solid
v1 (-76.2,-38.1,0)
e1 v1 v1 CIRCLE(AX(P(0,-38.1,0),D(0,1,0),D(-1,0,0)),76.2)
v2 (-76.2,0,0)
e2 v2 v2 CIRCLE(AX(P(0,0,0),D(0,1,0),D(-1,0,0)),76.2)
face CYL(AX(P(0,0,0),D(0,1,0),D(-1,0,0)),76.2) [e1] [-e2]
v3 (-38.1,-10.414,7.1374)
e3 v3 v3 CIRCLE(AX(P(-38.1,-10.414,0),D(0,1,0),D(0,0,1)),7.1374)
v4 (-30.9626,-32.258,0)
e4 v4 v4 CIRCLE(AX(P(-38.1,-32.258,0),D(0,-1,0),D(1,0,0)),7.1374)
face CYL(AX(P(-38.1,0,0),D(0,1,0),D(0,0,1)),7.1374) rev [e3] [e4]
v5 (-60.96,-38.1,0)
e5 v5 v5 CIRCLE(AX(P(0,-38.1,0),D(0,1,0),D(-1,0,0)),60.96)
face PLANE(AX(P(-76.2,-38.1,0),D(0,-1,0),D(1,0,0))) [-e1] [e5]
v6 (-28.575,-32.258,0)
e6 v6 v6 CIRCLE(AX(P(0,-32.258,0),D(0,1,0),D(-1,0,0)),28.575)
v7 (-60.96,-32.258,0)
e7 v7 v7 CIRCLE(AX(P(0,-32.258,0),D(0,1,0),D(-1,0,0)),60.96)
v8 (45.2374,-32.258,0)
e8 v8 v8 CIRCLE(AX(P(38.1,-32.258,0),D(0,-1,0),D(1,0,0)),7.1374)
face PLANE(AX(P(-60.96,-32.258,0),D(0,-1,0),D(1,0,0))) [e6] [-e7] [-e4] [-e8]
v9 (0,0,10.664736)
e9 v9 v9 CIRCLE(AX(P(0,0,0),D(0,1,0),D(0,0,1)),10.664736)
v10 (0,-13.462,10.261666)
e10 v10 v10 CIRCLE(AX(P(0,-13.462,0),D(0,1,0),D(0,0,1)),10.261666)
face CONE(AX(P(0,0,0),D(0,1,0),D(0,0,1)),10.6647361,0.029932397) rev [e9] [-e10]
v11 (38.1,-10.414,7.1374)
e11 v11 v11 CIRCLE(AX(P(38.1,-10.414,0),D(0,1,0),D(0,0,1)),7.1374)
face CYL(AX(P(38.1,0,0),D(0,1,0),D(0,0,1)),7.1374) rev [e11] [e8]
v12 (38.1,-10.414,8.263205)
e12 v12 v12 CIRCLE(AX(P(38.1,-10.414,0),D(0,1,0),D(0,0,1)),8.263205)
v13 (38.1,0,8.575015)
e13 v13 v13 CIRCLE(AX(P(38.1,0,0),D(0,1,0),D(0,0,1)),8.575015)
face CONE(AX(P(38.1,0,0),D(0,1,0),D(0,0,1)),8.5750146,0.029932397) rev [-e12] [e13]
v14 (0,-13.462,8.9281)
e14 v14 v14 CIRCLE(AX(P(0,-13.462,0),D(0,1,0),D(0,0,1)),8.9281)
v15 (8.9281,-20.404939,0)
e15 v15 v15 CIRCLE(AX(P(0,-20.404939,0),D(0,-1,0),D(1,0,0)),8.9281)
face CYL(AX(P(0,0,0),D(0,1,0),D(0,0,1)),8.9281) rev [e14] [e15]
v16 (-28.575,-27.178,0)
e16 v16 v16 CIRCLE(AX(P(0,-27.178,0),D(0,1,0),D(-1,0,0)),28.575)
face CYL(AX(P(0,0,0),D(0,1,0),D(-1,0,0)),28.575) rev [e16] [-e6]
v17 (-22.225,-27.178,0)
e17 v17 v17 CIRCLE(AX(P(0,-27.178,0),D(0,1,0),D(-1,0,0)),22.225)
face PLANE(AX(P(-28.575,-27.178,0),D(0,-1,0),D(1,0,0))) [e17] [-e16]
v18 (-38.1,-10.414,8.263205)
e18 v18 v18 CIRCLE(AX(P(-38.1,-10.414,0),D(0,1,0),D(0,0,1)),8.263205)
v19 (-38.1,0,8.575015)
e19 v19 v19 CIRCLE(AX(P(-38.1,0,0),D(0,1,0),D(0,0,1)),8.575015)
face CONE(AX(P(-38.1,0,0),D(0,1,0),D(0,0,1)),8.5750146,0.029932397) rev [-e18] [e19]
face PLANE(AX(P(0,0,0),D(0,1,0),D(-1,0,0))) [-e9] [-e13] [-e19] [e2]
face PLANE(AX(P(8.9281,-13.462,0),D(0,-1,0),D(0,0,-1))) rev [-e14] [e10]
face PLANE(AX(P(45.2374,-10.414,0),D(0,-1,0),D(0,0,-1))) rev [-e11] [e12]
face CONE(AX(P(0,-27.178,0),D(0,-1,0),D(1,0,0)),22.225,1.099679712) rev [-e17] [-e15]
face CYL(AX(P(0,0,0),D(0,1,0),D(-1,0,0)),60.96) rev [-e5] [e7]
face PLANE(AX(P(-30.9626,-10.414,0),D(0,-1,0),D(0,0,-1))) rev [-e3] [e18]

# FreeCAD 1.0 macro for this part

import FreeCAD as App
import Part
import Sketcher
Q = App.Units.Quantity

doc = App.newDocument("Part")
body = doc.addObject("PartDesign::Body", "Body")

sketch1 = doc.addObject("Sketcher::SketchObject", "Sketch")
body.addObject(sketch1)
sketch1.AttachmentSupport = (doc.XY_Plane, [""])
sketch1.MapMode = "FlatFace"
sketch1.addGeometry([
    Part.LineSegment(App.Vector(0, 0, 0), App.Vector(-76, 0, 0)),
    Part.LineSegment(App.Vector(-76, 0, 0), App.Vector(-76, -38, 0)),
    Part.LineSegment(App.Vector(-76, -38, 0), App.Vector(-61, -38, 0)),
    Part.LineSegment(App.Vector(-61, -38, 0), App.Vector(-61, -32, 0)),
    Part.LineSegment(App.Vector(-61, -32, 0), App.Vector(-29, -32, 0)),
    Part.LineSegment(App.Vector(-29, -32, 0), App.Vector(-29, -27, 0)),
    Part.LineSegment(App.Vector(-29, -27, 0), App.Vector(-22, -27, 0)),
    Part.LineSegment(App.Vector(-22, -27, 0), App.Vector(0, -16, 0)),
    Part.LineSegment(App.Vector(0, -16, 0), App.Vector(0, 0, 0)),
], False)
sketch1.addConstraint([
    Sketcher.Constraint("Coincident", 0, 2, 1, 1),
    Sketcher.Constraint("Coincident", 1, 2, 2, 1),
    Sketcher.Constraint("Coincident", 2, 2, 3, 1),
    Sketcher.Constraint("Coincident", 3, 2, 4, 1),
    Sketcher.Constraint("Coincident", 4, 2, 5, 1),
    Sketcher.Constraint("Coincident", 5, 2, 6, 1),
    Sketcher.Constraint("Coincident", 6, 2, 7, 1),
    Sketcher.Constraint("Coincident", 7, 2, 8, 1),
    Sketcher.Constraint("Coincident", 8, 2, 0, 1),
    Sketcher.Constraint("Horizontal", 0),
    Sketcher.Constraint("Vertical", 1),
    Sketcher.Constraint("Horizontal", 2),
    Sketcher.Constraint("Vertical", 3),
    Sketcher.Constraint("Horizontal", 4),
    Sketcher.Constraint("Vertical", 5),
    Sketcher.Constraint("Horizontal", 6),
    Sketcher.Constraint("Vertical", 8),
    Sketcher.Constraint("Coincident", 8, 2, -1, 1),
    Sketcher.Constraint("DistanceX", 0, 2, 0, 1, Q("3 in")),
    Sketcher.Constraint("DistanceX", 2, 1, 2, 2, Q("0.6 in")),
    Sketcher.Constraint("DistanceY", 1, 2, 1, 1, Q("1.5 in")),
    Sketcher.Constraint("DistanceY", 5, 1, 5, 2, Q("0.2 in")),
    Sketcher.Constraint("DistanceX", 6, 1, 6, 2, Q("0.25 in")),
    Sketcher.Constraint("DistanceY", 3, 1, 3, 2, Q("0.23 in")),
    Sketcher.Constraint("DistanceX", 4, 1, 4, 2, Q("1.275 in")),
    Sketcher.Constraint("DistanceY", 8, 1, 8, 2, Q("0.6243 in")),
])
revolution = doc.addObject("PartDesign::Revolution", "Revolution")
body.addObject(revolution)
revolution.Profile = sketch1
revolution.ReferenceAxis = (sketch1, ["V_Axis"])
revolution.Angle = 360

sketch2 = doc.addObject("Sketcher::SketchObject", "Sketch001")
body.addObject(sketch2)
sketch2.AttachmentSupport = (doc.YZ_Plane, [""])
sketch2.MapMode = "FlatFace"
sketch2.addGeometry([
    Part.LineSegment(App.Vector(-38.1, 0, 0), App.Vector(0, 0, 0)),
    Part.LineSegment(App.Vector(0, 0, 0), App.Vector(0, 10.7, 0)),
    Part.LineSegment(App.Vector(0, 10.7, 0), App.Vector(-13.5, 10.3, 0)),
    Part.LineSegment(App.Vector(-13.5, 10.3, 0), App.Vector(-13.5, 8.9, 0)),
    Part.LineSegment(App.Vector(-13.5, 8.9, 0), App.Vector(-38.1, 8.9, 0)),
    Part.LineSegment(App.Vector(-38.1, 8.9, 0), App.Vector(-38.1, 0, 0)),
], False)
sketch2.addConstraint([
    Sketcher.Constraint("Coincident", 0, 2, 1, 1),
    Sketcher.Constraint("Coincident", 1, 2, 2, 1),
    Sketcher.Constraint("Coincident", 2, 2, 3, 1),
    Sketcher.Constraint("Coincident", 3, 2, 4, 1),
    Sketcher.Constraint("Coincident", 4, 2, 5, 1),
    Sketcher.Constraint("Coincident", 5, 2, 0, 1),
    Sketcher.Constraint("Horizontal", 0),
    Sketcher.Constraint("Vertical", 1),
    Sketcher.Constraint("Vertical", 3),
    Sketcher.Constraint("Horizontal", 4),
    Sketcher.Constraint("Vertical", 5),
    Sketcher.Constraint("Coincident", 0, 2, -1, 1),
    Sketcher.Constraint("DistanceX", 0, 1, 0, 2, Q("1.5 in")),
    Sketcher.Constraint("DistanceX", 4, 2, 4, 1, Q("0.97 in")),
    Sketcher.Constraint("DistanceY", 5, 2, 5, 1, Q("0.3515 in")),
    Sketcher.Constraint("DistanceY", 1, 1, 1, 2, Q("10.664736 mm")),
    Sketcher.Constraint("DistanceY", 3, 2, 3, 1, Q("1.333566 mm")),
])
groove = doc.addObject("PartDesign::Groove", "Groove")
body.addObject(groove)
groove.Profile = sketch2
groove.ReferenceAxis = (sketch2, ["H_Axis"])
groove.Angle = 360

sketch3 = doc.addObject("Sketcher::SketchObject", "Sketch002")
body.addObject(sketch3)
sketch3.AttachmentSupport = (doc.YZ_Plane, [""])
sketch3.MapMode = "FlatFace"
sketch3.AttachmentOffset = App.Placement(App.Vector(0, 0, -1.5 * 25.4), App.Rotation())
sketch3.addGeometry([
    Part.LineSegment(App.Vector(-38.1, 0, 0), App.Vector(0, 0, 0)),
    Part.LineSegment(App.Vector(0, 0, 0), App.Vector(0, 8.6, 0)),
    Part.LineSegment(App.Vector(0, 8.6, 0), App.Vector(-10.4, 8.3, 0)),
    Part.LineSegment(App.Vector(-10.4, 8.3, 0), App.Vector(-10.4, 7.1, 0)),
    Part.LineSegment(App.Vector(-10.4, 7.1, 0), App.Vector(-38.1, 7.1, 0)),
    Part.LineSegment(App.Vector(-38.1, 7.1, 0), App.Vector(-38.1, 0, 0)),
], False)
sketch3.addConstraint([
    Sketcher.Constraint("Coincident", 0, 2, 1, 1),
    Sketcher.Constraint("Coincident", 1, 2, 2, 1),
    Sketcher.Constraint("Coincident", 2, 2, 3, 1),
    Sketcher.Constraint("Coincident", 3, 2, 4, 1),
    Sketcher.Constraint("Coincident", 4, 2, 5, 1),
    Sketcher.Constraint("Coincident", 5, 2, 0, 1),
    Sketcher.Constraint("Horizontal", 0),
    Sketcher.Constraint("Vertical", 1),
    Sketcher.Constraint("Vertical", 3),
    Sketcher.Constraint("Horizontal", 4),
    Sketcher.Constraint("Vertical", 5),
    Sketcher.Constraint("Coincident", 0, 2, -1, 1),
    Sketcher.Constraint("DistanceX", 0, 1, 0, 2, Q("1.5 in")),
    Sketcher.Constraint("DistanceX", 4, 2, 4, 1, Q("1.09 in")),
    Sketcher.Constraint("DistanceY", 5, 2, 5, 1, Q("0.281 in")),
    Sketcher.Constraint("DistanceY", 1, 1, 1, 2, Q("8.575015 mm")),
    Sketcher.Constraint("DistanceY", 3, 2, 3, 1, Q("1.125805 mm")),
])
groove2 = doc.addObject("PartDesign::Groove", "Groove001")
body.addObject(groove2)
groove2.Profile = sketch3
groove2.ReferenceAxis = (sketch3, ["H_Axis"])
groove2.Angle = 360
doc.recompute()

linearpattern = doc.addObject("PartDesign::LinearPattern", "LinearPattern")
body.addObject(linearpattern)
linearpattern.Originals = [groove2]
linearpattern.Direction = (doc.X_Axis, [""])
linearpattern.Mode = "offset"
linearpattern.Offset = Q("3 in")
linearpattern.Occurrences = 2
body.Tip = linearpattern

doc.recompute()
